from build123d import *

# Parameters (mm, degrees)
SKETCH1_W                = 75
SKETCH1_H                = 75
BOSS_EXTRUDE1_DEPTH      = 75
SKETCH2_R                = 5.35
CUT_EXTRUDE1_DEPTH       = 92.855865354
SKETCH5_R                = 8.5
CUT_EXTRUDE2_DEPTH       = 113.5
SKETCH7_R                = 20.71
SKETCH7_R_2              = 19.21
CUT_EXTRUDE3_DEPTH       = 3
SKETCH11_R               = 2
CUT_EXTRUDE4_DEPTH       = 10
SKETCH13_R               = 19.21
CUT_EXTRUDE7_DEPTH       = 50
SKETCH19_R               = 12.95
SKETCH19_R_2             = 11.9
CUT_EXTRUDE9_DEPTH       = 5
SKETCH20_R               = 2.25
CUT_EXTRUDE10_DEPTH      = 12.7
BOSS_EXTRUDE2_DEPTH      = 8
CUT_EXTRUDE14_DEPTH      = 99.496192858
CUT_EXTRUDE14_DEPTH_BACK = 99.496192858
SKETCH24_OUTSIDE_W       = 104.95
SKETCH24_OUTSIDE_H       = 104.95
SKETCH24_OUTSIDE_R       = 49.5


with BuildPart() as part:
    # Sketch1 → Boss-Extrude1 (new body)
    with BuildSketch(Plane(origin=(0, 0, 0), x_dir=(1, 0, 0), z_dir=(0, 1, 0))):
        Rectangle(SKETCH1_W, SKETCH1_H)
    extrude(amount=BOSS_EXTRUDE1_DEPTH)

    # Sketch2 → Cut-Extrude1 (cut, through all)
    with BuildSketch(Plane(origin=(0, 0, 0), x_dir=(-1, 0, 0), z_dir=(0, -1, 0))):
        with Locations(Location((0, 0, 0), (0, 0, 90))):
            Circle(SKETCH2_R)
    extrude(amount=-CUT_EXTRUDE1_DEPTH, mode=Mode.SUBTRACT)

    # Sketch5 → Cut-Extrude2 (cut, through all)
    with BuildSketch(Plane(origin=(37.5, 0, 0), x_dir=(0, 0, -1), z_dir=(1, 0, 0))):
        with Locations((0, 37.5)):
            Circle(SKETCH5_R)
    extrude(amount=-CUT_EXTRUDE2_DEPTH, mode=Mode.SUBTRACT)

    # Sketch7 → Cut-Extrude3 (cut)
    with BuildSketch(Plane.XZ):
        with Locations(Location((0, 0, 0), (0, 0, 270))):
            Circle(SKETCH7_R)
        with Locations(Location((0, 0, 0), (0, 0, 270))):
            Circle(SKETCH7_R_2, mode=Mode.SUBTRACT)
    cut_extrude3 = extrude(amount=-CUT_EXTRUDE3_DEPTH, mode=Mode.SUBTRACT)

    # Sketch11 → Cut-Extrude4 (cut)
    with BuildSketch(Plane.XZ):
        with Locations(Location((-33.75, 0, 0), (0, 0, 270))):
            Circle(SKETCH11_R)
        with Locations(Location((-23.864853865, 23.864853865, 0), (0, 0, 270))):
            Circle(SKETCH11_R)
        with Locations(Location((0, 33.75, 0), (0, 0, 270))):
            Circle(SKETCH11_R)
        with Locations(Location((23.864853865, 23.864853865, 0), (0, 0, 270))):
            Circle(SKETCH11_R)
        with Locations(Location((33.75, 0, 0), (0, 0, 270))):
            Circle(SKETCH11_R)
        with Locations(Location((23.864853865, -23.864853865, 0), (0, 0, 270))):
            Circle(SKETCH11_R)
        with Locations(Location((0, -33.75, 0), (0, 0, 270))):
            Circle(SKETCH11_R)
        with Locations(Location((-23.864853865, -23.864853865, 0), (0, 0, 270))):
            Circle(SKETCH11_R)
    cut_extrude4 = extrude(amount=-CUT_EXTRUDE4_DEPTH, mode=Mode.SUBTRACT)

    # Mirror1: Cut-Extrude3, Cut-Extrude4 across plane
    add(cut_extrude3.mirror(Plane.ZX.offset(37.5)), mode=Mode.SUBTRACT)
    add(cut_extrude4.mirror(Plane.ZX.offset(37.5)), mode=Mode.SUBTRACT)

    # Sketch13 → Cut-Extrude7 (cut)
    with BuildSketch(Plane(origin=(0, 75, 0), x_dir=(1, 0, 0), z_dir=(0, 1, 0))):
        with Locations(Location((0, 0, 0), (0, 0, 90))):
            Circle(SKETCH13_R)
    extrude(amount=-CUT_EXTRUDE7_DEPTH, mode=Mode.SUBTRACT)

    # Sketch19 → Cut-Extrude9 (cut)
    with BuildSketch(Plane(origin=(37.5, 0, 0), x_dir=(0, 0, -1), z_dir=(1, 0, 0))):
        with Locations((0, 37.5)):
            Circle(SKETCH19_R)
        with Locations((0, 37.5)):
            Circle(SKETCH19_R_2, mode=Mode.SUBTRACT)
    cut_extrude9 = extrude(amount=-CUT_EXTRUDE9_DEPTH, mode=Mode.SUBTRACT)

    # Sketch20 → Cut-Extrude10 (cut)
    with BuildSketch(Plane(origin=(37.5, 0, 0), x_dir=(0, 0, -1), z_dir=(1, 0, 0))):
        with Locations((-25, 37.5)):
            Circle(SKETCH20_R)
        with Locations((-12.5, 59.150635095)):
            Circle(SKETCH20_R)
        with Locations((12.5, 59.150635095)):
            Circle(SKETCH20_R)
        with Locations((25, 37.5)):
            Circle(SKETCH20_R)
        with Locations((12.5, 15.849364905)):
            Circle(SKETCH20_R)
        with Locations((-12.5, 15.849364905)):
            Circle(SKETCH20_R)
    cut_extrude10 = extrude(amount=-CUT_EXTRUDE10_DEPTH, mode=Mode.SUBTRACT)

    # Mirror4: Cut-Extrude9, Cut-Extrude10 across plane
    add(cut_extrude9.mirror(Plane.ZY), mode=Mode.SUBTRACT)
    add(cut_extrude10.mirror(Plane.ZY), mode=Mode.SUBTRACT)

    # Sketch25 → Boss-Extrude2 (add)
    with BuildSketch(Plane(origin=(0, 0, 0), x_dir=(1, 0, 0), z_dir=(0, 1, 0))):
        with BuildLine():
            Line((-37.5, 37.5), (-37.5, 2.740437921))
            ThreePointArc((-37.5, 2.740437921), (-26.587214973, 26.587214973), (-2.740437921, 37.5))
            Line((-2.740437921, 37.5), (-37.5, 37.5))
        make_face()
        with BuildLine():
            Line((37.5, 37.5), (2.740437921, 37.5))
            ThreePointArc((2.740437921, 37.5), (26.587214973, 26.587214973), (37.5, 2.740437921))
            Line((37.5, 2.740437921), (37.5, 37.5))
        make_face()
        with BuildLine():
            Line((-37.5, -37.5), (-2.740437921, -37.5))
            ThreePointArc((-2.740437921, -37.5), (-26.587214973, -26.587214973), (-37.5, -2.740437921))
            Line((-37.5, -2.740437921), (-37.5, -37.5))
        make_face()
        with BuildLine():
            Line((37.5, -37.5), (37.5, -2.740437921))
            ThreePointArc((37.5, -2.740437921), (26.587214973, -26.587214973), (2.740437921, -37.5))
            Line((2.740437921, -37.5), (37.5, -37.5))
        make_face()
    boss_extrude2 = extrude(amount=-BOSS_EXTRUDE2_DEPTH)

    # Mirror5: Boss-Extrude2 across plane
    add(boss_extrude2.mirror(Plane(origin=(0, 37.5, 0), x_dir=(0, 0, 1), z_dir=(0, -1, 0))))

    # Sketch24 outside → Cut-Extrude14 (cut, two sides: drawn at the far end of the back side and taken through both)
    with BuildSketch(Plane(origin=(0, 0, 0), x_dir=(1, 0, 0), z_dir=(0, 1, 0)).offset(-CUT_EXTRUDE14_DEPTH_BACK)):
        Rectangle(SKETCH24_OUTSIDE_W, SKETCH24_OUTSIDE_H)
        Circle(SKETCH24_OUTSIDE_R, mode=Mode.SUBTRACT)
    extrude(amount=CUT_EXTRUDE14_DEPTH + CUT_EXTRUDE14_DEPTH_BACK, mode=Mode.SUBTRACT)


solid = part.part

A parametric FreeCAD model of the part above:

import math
import FreeCAD as App
import Part
import Sketcher

V = App.Vector


def add_polygon(sketch, points):
    """Adds a closed chain of lines whose ends are joined by coincident constraints."""
    first, n = sketch.GeometryCount, len(points)
    for a, b in zip(points, points[1:] + points[:1]):
        sketch.addGeometry(Part.LineSegment(App.Vector(*a, 0), App.Vector(*b, 0)), False)
    for i in range(n):
        sketch.addConstraint(Sketcher.Constraint("Coincident", first + i, 2, first + (i + 1) % n, 1))

doc = App.newDocument("Part")
body = doc.addObject("PartDesign::Body", "Body")

# Sketch on XZ plane
sketch1 = doc.addObject("Sketcher::SketchObject", "Sketch")
body.addObject(sketch1)
sketch1.AttachmentSupport = (doc.XZ_Plane, [""])
sketch1.MapMode = "FlatFace"
add_polygon(sketch1, [(-37.5, -37.5), (-37.5, 37.5), (37.5, 37.5), (37.5, -37.5)])  # lines 0-3
sketch1.addConstraint([
    Sketcher.Constraint("Vertical", 0),
    Sketcher.Constraint("Horizontal", 1),
    Sketcher.Constraint("Vertical", 2),
    Sketcher.Constraint("Horizontal", 3),
    Sketcher.Constraint("Symmetric", 0, 2, 2, 2, -1, 1),
    Sketcher.Constraint("Equal", 3, 0),
    Sketcher.Constraint("DistanceX", 1, 1, 1, 2, 75.0),
])
pad1 = doc.addObject("PartDesign::Pad", "Pad")
body.addObject(pad1)
pad1.Profile = sketch1
pad1.Length = 75
pad1.Reversed = True

# Sketch on XZ plane
sketch2 = doc.addObject("Sketcher::SketchObject", "Sketch001")
body.addObject(sketch2)
sketch2.AttachmentSupport = (doc.XZ_Plane, [""])
sketch2.MapMode = "FlatFace"
sketch2.addGeometry(Part.Circle(V(0, 0, 0), V(0, 0, 1), 5.35), False)
sketch2.addConstraint([
    Sketcher.Constraint("Coincident", 0, 3, -1, 1),
    Sketcher.Constraint("Diameter", 0, 10.7),
])
pocket1 = doc.addObject("PartDesign::Pocket", "Pocket")
body.addObject(pocket1)
pocket1.Profile = sketch2
pocket1.Type = "ThroughAll"

# Sketch on YZ plane
sketch3 = doc.addObject("Sketcher::SketchObject", "Sketch002")
body.addObject(sketch3)
sketch3.AttachmentSupport = (doc.YZ_Plane, [""])
sketch3.MapMode = "FlatFace"
sketch3.AttachmentOffset = App.Placement(V(0, 0, 37.5), App.Rotation())
sketch3.addGeometry(Part.Circle(V(37.5, 0, 0), V(0, 0, 1), 8.5), False)
sketch3.addConstraint([
    Sketcher.Constraint("PointOnObject", 0, 3, -1),
    Sketcher.Constraint("Diameter", 0, 17.0),
    Sketcher.Constraint("DistanceX", -1, 1, 0, 3, 37.5),
])
pocket2 = doc.addObject("PartDesign::Pocket", "Pocket001")
body.addObject(pocket2)
pocket2.Profile = sketch3
pocket2.Type = "ThroughAll"

# Sketch on XZ plane
sketch4 = doc.addObject("Sketcher::SketchObject", "Sketch003")
body.addObject(sketch4)
sketch4.AttachmentSupport = (doc.XZ_Plane, [""])
sketch4.MapMode = "FlatFace"
sketch4.addGeometry([
    Part.Circle(V(0, 0, 0), V(0, 0, 1), 20.71),
    Part.Circle(V(0, 0, 0), V(0, 0, 1), 19.21),
], False)
sketch4.addConstraint([
    Sketcher.Constraint("Coincident", 0, 3, -1, 1),
    Sketcher.Constraint("Coincident", 1, 3, -1, 1),
    Sketcher.Constraint("Diameter", 0, 41.42),
    Sketcher.Constraint("Diameter", 1, 38.42),
])
pocket3 = doc.addObject("PartDesign::Pocket", "Pocket002")
body.addObject(pocket3)
pocket3.Profile = sketch4
pocket3.Length = 3

# Sketch on XZ plane
sketch5 = doc.addObject("Sketcher::SketchObject", "Sketch004")
body.addObject(sketch5)
sketch5.AttachmentSupport = (doc.XZ_Plane, [""])
sketch5.MapMode = "FlatFace"
sketch5.addGeometry([
    Part.Circle(V(-33.75, 0, 0), V(0, 0, 1), 2),  # 0
    Part.Circle(V(-23.864854, 23.864854, 0), V(0, 0, 1), 2),  # 1
    Part.Circle(V(0, 33.75, 0), V(0, 0, 1), 2),  # 2
    Part.Circle(V(23.864854, 23.864854, 0), V(0, 0, 1), 2),  # 3
    Part.Circle(V(33.75, 0, 0), V(0, 0, 1), 2),  # 4
    Part.Circle(V(23.864854, -23.864854, 0), V(0, 0, 1), 2),  # 5
    Part.Circle(V(0, -33.75, 0), V(0, 0, 1), 2),  # 6
    Part.Circle(V(-23.864854, -23.864854, 0), V(0, 0, 1), 2),  # 7
], False)
sketch5.addConstraint([
    Sketcher.Constraint("Equal", 0, 1),
    Sketcher.Constraint("Equal", 1, 2),
    Sketcher.Constraint("Equal", 2, 3),
    Sketcher.Constraint("Equal", 3, 4),
    Sketcher.Constraint("Equal", 4, 5),
    Sketcher.Constraint("Equal", 5, 6),
    Sketcher.Constraint("Equal", 6, 7),
    Sketcher.Constraint("Symmetric", 0, 3, 4, 3, -1, 1),
    Sketcher.Constraint("Symmetric", 1, 3, 5, 3, -1, 1),
    Sketcher.Constraint("Symmetric", 2, 3, 6, 3, -1, 1),
    Sketcher.Constraint("Symmetric", 3, 3, 7, 3, -1, 1),
    Sketcher.Constraint("Symmetric", 1, 3, 3, 3, -2),
    Sketcher.Constraint("PointOnObject", 0, 3, -1),
    Sketcher.Constraint("PointOnObject", 2, 3, -2),
    Sketcher.Constraint("Diameter", 0, 4.0),
    Sketcher.Constraint("DistanceX", 0, 3, 4, 3, 67.5),
    Sketcher.Constraint("DistanceY", -1, 1, 2, 3, 33.75),
    Sketcher.Constraint("DistanceX", 1, 3, -1, 1, 23.864854),
    Sketcher.Constraint("DistanceY", -1, 1, 1, 3, 23.864854),
])
pocket4 = doc.addObject("PartDesign::Pocket", "Pocket003")
body.addObject(pocket4)
pocket4.Profile = sketch5
pocket4.Length = 10
doc.recompute()

datumplane = doc.addObject("PartDesign::Plane", "DatumPlane")
body.addObject(datumplane)
datumplane.AttachmentSupport = (doc.XZ_Plane, [""])
datumplane.MapMode = "FlatFace"
datumplane.AttachmentOffset = App.Placement(V(0, 0, -37.5), App.Rotation())
mirrored = doc.addObject("PartDesign::Mirrored", "Mirrored")
body.addObject(mirrored)
mirrored.Originals = [pocket3, pocket4]
mirrored.MirrorPlane = (datumplane, [""])
body.Tip = mirrored

# Sketch on XZ plane
sketch6 = doc.addObject("Sketcher::SketchObject", "Sketch005")
body.addObject(sketch6)
sketch6.AttachmentSupport = (doc.XZ_Plane, [""])
sketch6.MapMode = "FlatFace"
sketch6.AttachmentOffset = App.Placement(V(0, 0, -75), App.Rotation())
sketch6.addGeometry(Part.Circle(V(0, 0, 0), V(0, 0, 1), 19.21), False)
sketch6.addConstraint([
    Sketcher.Constraint("Coincident", 0, 3, -1, 1),
    Sketcher.Constraint("Diameter", 0, 38.42),
])
pocket5 = doc.addObject("PartDesign::Pocket", "Pocket004")
body.addObject(pocket5)
pocket5.Profile = sketch6
pocket5.Length = 50
pocket5.Reversed = True

# Sketch on YZ plane
sketch7 = doc.addObject("Sketcher::SketchObject", "Sketch006")
body.addObject(sketch7)
sketch7.AttachmentSupport = (doc.YZ_Plane, [""])
sketch7.MapMode = "FlatFace"
sketch7.AttachmentOffset = App.Placement(V(0, 0, 37.5), App.Rotation())
sketch7.addGeometry([
    Part.Circle(V(37.5, 0, 0), V(0, 0, 1), 12.95),
    Part.Circle(V(37.5, 0, 0), V(0, 0, 1), 11.9),
], False)
sketch7.addConstraint([
    Sketcher.Constraint("Coincident", 1, 3, 0, 3),
    Sketcher.Constraint("PointOnObject", 0, 3, -1),
    Sketcher.Constraint("Diameter", 0, 25.9),
    Sketcher.Constraint("Diameter", 1, 23.8),
    Sketcher.Constraint("DistanceX", -1, 1, 0, 3, 37.5),
])
pocket6 = doc.addObject("PartDesign::Pocket", "Pocket005")
body.addObject(pocket6)
pocket6.Profile = sketch7
pocket6.Length = 5

# Sketch on YZ plane
sketch8 = doc.addObject("Sketcher::SketchObject", "Sketch007")
body.addObject(sketch8)
sketch8.AttachmentSupport = (doc.YZ_Plane, [""])
sketch8.MapMode = "FlatFace"
sketch8.AttachmentOffset = App.Placement(V(0, 0, 37.5), App.Rotation())
sketch8.addGeometry([
    Part.Circle(V(37.5, 25, 0), V(0, 0, 1), 2.25),  # 0
    Part.Circle(V(59.150635, 12.5, 0), V(0, 0, 1), 2.25),  # 1
    Part.Circle(V(59.150635, -12.5, 0), V(0, 0, 1), 2.25),  # 2
    Part.Circle(V(37.5, -25, 0), V(0, 0, 1), 2.25),  # 3
    Part.Circle(V(15.849365, -12.5, 0), V(0, 0, 1), 2.25),  # 4
    Part.Circle(V(15.849365, 12.5, 0), V(0, 0, 1), 2.25),  # 5
], False)
sketch8.addConstraint([
    Sketcher.Constraint("Equal", 0, 1),
    Sketcher.Constraint("Equal", 1, 2),
    Sketcher.Constraint("Equal", 2, 3),
    Sketcher.Constraint("Equal", 3, 4),
    Sketcher.Constraint("Equal", 4, 5),
    Sketcher.Constraint("Symmetric", 1, 3, 2, 3, -1),
    Sketcher.Constraint("Symmetric", 0, 3, 3, 3, -1),
    Sketcher.Constraint("Symmetric", 4, 3, 5, 3, -1),
    Sketcher.Constraint("Horizontal", 2, 3, 4, 3),
    Sketcher.Constraint("Diameter", 0, 4.5),
    Sketcher.Constraint("DistanceY", -1, 1, 0, 3, 25.0),
    Sketcher.Constraint("DistanceY", 2, 3, 1, 3, 25.0),
    Sketcher.Constraint("DistanceX", -1, 1, 0, 3, 37.5),
    Sketcher.Constraint("DistanceX", 4, 3, 2, 3, 43.30127),
    Sketcher.Constraint("DistanceX", -1, 1, 1, 3, 59.150635),
])
pocket7 = doc.addObject("PartDesign::Pocket", "Pocket006")
body.addObject(pocket7)
pocket7.Profile = sketch8
pocket7.Length = 12.7
doc.recompute()

mirrored2 = doc.addObject("PartDesign::Mirrored", "Mirrored001")
body.addObject(mirrored2)
mirrored2.Originals = [pocket6, pocket7]
mirrored2.MirrorPlane = (doc.YZ_Plane, [""])
body.Tip = mirrored2

# Sketch on XZ plane
sketch9 = doc.addObject("Sketcher::SketchObject", "Sketch008")
body.addObject(sketch9)
sketch9.AttachmentSupport = (doc.XZ_Plane, [""])
sketch9.MapMode = "FlatFace"
sketch9.addGeometry([
    Part.LineSegment(V(-37.5, -37.5, 0), V(-37.5, -2.740438, 0)),  # 0
    Part.ArcOfCircle(Part.Circle(V(0, 0, 0), V(0, 0, 1), 37.6), math.radians(-175.820349), math.radians(-94.179651)),  # 1
    Part.LineSegment(V(-2.740438, -37.5, 0), V(-37.5, -37.5, 0)),  # 2
    Part.LineSegment(V(37.5, -37.5, 0), V(2.740438, -37.5, 0)),  # 3
    Part.ArcOfCircle(Part.Circle(V(0, 0, 0), V(0, 0, 1), 37.6), math.radians(-85.820349), math.radians(-4.179651)),  # 4
    Part.LineSegment(V(37.5, -2.740438, 0), V(37.5, -37.5, 0)),  # 5
    Part.LineSegment(V(-37.5, 37.5, 0), V(-2.740438, 37.5, 0)),  # 6
    Part.ArcOfCircle(Part.Circle(V(0, 0, 0), V(0, 0, 1), 37.6), math.radians(94.179651), math.radians(175.820349)),  # 7
    Part.LineSegment(V(-37.5, 2.740438, 0), V(-37.5, 37.5, 0)),  # 8
    Part.LineSegment(V(37.5, 37.5, 0), V(37.5, 2.740438, 0)),  # 9
    Part.ArcOfCircle(Part.Circle(V(0, 0, 0), V(0, 0, 1), 37.6), math.radians(4.179651), math.radians(85.820349)),  # 10
    Part.LineSegment(V(2.740438, 37.5, 0), V(37.5, 37.5, 0)),  # 11
], False)
sketch9.addConstraint([
    Sketcher.Constraint("Coincident", 0, 2, 1, 1),
    Sketcher.Constraint("Coincident", 1, 2, 2, 1),
    Sketcher.Constraint("Coincident", 2, 2, 0, 1),
    Sketcher.Constraint("Coincident", 3, 2, 4, 1),
    Sketcher.Constraint("Coincident", 4, 2, 5, 1),
    Sketcher.Constraint("Coincident", 5, 2, 3, 1),
    Sketcher.Constraint("Coincident", 6, 2, 7, 1),
    Sketcher.Constraint("Coincident", 7, 2, 8, 1),
    Sketcher.Constraint("Coincident", 8, 2, 6, 1),
    Sketcher.Constraint("Coincident", 9, 2, 10, 1),
    Sketcher.Constraint("Coincident", 10, 2, 11, 1),
    Sketcher.Constraint("Coincident", 11, 2, 9, 1),
    Sketcher.Constraint("Vertical", 0),
    Sketcher.Constraint("Horizontal", 2),
    Sketcher.Constraint("Horizontal", 3),
    Sketcher.Constraint("Vertical", 5),
    Sketcher.Constraint("Horizontal", 6),
    Sketcher.Constraint("Vertical", 8),
    Sketcher.Constraint("Vertical", 9),
    Sketcher.Constraint("Horizontal", 11),
    Sketcher.Constraint("Coincident", 1, 3, -1, 1),
    Sketcher.Constraint("Coincident", 4, 3, -1, 1),
    Sketcher.Constraint("Coincident", 7, 3, -1, 1),
    Sketcher.Constraint("Coincident", 10, 3, -1, 1),
    Sketcher.Constraint("Equal", 1, 4),
    Sketcher.Constraint("Equal", 4, 7),
    Sketcher.Constraint("Equal", 7, 10),
    Sketcher.Constraint("Symmetric", 5, 2, 8, 2, -1, 1),
    Sketcher.Constraint("Symmetric", 2, 2, 11, 2, -1, 1),
    Sketcher.Constraint("Symmetric", 2, 2, 5, 2, -2),
    Sketcher.Constraint("Equal", 11, 0),
    Sketcher.Constraint("Radius", 1, 37.6),
    Sketcher.Constraint("DistanceX", 0, 2, -1, 1, 37.5),
])
pad2 = doc.addObject("PartDesign::Pad", "Pad001")
body.addObject(pad2)
pad2.Profile = sketch9
pad2.Length = 8
doc.recompute()

datumplane2 = doc.addObject("PartDesign::Plane", "DatumPlane001")
body.addObject(datumplane2)
datumplane2.AttachmentSupport = (doc.XZ_Plane, [""])
datumplane2.MapMode = "FlatFace"
datumplane2.AttachmentOffset = App.Placement(V(0, 0, -37.5), App.Rotation())
mirrored3 = doc.addObject("PartDesign::Mirrored", "Mirrored002")
body.addObject(mirrored3)
mirrored3.Originals = [pad2]
mirrored3.MirrorPlane = (datumplane2, [""])
body.Tip = mirrored3

# Sketch on XZ plane
sketch10 = doc.addObject("Sketcher::SketchObject", "Sketch009")
body.addObject(sketch10)
sketch10.AttachmentSupport = (doc.XZ_Plane, [""])
sketch10.MapMode = "FlatFace"
add_polygon(sketch10, [(-52.475, -52.475), (-52.475, 52.475), (52.475, 52.475), (52.475, -52.475)])  # lines 0-3
sketch10.addGeometry(Part.Circle(V(0, 0, 0), V(0, 0, 1), 49.5), False)  # 4
sketch10.addConstraint([
    Sketcher.Constraint("Vertical", 0),
    Sketcher.Constraint("Horizontal", 1),
    Sketcher.Constraint("Vertical", 2),
    Sketcher.Constraint("Horizontal", 3),
    Sketcher.Constraint("Coincident", 4, 3, -1, 1),
    Sketcher.Constraint("Symmetric", 0, 2, 2, 2, -1, 1),
    Sketcher.Constraint("Equal", 3, 0),
    Sketcher.Constraint("Diameter", 4, 99.0),
    Sketcher.Constraint("DistanceX", 1, 1, 1, 2, 104.95),
])
pocket8 = doc.addObject("PartDesign::Pocket", "Pocket007")
body.addObject(pocket8)
pocket8.Profile = sketch10
pocket8.Type = "ThroughAll"
pocket8.Midplane = True

doc.recompute()
